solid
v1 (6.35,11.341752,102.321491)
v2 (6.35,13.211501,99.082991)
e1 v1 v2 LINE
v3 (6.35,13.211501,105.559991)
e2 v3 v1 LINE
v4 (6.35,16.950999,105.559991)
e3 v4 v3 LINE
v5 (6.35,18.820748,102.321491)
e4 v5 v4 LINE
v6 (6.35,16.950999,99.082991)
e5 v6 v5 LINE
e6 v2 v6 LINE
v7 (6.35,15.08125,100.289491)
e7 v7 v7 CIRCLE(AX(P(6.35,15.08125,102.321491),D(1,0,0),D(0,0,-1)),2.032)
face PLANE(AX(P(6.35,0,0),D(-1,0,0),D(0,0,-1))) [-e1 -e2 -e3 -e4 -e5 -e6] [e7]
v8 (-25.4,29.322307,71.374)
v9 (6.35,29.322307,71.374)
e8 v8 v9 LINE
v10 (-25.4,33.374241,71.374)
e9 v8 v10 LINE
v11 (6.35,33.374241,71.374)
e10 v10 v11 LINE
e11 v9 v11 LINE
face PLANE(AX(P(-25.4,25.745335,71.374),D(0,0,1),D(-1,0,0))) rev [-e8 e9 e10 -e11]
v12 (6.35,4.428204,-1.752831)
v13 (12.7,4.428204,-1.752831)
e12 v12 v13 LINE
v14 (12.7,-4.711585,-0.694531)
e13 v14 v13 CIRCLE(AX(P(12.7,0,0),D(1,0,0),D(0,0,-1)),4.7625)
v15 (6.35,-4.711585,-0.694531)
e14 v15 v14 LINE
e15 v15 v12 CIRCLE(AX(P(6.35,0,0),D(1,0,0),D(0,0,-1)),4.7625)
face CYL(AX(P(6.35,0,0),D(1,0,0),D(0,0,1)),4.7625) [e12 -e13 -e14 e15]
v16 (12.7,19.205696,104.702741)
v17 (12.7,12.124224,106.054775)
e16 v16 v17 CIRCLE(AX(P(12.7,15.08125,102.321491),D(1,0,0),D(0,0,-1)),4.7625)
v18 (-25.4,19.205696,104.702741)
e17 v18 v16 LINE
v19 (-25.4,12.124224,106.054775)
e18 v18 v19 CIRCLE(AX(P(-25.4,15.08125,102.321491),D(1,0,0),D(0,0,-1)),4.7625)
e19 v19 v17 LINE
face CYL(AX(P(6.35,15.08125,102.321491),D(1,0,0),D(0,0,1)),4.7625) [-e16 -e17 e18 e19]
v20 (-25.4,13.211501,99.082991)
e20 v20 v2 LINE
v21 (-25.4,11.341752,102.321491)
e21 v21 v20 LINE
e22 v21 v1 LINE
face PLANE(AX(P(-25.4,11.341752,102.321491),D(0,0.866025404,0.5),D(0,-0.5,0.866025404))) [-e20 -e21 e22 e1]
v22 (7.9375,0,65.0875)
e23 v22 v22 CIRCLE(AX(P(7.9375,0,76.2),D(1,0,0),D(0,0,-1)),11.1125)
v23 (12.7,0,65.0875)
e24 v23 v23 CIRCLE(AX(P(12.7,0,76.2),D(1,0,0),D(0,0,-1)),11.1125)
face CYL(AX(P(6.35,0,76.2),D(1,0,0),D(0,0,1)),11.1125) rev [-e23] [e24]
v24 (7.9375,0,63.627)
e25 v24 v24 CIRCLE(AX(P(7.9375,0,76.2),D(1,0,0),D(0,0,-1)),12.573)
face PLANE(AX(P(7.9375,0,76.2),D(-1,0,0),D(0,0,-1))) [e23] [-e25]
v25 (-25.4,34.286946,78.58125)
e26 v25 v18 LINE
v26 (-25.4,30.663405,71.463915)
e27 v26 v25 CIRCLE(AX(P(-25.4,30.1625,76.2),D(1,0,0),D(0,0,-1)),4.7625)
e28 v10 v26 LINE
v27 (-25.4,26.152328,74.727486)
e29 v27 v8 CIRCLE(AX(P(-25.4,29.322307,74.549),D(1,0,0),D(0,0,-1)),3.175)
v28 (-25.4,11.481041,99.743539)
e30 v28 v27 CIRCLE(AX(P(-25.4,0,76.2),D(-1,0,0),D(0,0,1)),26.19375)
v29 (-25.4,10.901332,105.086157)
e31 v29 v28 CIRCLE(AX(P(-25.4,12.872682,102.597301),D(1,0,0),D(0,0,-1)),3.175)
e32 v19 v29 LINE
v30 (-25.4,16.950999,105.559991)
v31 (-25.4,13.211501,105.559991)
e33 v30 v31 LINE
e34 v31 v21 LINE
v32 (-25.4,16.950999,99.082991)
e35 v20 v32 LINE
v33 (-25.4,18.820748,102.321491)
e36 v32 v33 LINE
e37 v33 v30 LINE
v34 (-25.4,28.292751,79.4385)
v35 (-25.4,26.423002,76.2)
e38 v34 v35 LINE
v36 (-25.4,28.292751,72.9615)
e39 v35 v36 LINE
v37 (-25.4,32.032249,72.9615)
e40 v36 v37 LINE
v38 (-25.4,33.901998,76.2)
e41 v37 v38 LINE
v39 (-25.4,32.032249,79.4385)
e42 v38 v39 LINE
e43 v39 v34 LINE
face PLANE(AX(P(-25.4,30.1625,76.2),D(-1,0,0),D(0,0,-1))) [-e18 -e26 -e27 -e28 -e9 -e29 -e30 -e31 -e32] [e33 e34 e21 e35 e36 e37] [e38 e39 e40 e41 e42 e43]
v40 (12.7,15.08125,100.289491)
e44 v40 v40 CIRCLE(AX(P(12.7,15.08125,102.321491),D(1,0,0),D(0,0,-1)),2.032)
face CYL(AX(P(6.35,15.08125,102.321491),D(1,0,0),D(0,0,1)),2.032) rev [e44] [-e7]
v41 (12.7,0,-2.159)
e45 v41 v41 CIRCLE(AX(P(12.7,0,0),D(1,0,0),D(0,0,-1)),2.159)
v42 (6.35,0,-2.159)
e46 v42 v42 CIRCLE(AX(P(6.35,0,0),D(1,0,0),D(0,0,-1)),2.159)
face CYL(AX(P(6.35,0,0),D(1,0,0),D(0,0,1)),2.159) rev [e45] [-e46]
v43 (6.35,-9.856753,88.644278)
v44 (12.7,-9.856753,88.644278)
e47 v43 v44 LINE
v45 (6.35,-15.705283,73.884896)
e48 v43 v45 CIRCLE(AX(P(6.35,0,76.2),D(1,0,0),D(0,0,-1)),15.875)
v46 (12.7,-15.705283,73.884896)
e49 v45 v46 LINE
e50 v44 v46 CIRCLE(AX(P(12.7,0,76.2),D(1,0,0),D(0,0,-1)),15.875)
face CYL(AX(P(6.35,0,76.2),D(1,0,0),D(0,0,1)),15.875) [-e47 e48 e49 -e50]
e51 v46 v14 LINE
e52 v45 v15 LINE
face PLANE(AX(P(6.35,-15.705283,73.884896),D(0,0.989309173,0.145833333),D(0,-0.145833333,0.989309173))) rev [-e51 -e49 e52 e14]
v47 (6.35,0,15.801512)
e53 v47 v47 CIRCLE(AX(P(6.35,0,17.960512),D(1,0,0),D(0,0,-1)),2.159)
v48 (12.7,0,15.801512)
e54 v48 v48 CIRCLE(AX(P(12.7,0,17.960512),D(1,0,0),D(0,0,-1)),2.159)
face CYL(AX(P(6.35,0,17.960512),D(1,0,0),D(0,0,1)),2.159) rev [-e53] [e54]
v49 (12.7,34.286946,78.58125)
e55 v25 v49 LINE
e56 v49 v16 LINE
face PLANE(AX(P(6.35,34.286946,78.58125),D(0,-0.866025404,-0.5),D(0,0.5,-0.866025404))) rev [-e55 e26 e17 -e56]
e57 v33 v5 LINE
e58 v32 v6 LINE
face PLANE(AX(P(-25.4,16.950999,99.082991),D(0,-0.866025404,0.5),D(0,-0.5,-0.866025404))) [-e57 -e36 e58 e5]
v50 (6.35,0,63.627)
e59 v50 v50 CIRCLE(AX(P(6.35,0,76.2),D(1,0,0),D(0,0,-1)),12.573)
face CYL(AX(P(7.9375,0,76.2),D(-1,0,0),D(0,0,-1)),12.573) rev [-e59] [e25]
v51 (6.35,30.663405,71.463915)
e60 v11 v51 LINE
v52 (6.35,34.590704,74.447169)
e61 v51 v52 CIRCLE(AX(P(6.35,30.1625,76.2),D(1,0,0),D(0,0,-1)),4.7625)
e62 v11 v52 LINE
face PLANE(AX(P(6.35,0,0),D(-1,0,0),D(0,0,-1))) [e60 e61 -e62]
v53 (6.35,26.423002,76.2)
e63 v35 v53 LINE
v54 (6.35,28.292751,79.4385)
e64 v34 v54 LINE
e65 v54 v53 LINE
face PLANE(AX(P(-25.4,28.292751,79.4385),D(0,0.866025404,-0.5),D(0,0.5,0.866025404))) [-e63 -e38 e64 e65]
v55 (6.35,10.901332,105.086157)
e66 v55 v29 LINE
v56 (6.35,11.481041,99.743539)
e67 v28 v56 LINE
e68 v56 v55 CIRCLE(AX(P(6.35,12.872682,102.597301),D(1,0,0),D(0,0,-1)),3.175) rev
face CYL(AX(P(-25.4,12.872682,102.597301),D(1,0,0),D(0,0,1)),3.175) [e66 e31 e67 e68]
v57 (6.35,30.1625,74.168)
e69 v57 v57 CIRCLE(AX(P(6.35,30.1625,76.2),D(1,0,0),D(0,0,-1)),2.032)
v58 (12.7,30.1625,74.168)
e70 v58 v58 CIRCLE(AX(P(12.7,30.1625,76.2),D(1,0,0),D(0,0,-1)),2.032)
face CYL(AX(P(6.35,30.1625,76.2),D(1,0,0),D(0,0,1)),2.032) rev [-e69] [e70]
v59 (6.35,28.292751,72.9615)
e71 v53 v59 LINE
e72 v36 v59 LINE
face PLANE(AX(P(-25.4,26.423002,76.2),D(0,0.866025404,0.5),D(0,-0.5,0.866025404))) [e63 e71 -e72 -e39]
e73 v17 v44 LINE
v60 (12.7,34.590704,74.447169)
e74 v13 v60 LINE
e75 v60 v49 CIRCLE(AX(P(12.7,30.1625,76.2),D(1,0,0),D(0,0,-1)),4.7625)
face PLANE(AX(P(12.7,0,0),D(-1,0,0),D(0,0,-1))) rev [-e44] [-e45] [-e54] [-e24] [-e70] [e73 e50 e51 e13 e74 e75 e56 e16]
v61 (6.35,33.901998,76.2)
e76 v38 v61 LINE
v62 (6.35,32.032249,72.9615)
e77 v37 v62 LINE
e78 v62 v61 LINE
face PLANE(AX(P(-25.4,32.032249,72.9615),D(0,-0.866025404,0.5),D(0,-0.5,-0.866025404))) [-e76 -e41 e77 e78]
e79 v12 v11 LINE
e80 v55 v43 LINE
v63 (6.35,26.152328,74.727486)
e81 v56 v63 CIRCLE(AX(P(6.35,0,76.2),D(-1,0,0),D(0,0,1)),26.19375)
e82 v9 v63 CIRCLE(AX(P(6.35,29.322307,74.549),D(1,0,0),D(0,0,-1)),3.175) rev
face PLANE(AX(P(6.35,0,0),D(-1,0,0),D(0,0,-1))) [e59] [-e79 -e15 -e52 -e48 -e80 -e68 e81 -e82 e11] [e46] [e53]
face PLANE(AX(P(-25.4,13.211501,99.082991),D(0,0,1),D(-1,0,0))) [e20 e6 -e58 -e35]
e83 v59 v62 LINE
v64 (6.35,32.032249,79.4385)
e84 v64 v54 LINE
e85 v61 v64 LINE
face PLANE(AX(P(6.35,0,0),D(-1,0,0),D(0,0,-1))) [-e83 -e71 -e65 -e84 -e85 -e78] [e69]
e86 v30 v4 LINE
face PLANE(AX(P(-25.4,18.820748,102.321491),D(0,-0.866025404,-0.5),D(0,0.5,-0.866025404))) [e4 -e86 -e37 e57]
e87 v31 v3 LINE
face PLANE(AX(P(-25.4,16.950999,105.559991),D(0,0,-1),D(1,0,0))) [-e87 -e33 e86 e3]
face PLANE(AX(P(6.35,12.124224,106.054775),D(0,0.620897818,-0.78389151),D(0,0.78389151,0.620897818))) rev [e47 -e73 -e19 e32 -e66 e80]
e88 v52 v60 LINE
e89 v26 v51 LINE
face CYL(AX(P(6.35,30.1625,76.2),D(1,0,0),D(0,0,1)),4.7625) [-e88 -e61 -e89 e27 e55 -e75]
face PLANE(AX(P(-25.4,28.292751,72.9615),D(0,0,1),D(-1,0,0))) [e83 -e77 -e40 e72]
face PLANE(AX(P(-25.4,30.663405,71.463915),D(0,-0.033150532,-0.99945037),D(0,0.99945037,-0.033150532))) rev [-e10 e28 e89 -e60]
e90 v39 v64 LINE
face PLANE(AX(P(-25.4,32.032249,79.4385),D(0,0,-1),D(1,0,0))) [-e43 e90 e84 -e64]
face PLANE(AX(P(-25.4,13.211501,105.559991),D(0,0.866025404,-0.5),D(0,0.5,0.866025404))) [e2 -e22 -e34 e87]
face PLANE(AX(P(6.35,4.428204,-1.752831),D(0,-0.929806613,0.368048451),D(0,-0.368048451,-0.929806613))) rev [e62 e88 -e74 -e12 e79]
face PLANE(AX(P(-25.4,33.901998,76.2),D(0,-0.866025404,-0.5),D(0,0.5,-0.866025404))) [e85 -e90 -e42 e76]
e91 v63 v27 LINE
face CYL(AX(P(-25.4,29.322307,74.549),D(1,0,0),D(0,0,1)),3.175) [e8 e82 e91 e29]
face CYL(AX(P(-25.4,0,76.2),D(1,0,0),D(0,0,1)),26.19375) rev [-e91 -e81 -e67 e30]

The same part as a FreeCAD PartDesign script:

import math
import FreeCAD as App
import Part
import Sketcher
Q = App.Units.Quantity


def edges_at(feature, points):
    """Names of the edges that pass closest to the given points."""
    edges = feature.Shape.Edges
    near = lambda p: min(range(len(edges)), key=lambda i: edges[i].distToShape(Part.Vertex(*p))[0])
    return sorted({f"Edge{near(p) + 1}" for p in points})

doc = App.newDocument("Part")
body = doc.addObject("PartDesign::Body", "Body")

sketch1 = body.newObject("Sketcher::SketchObject", "Sketch")
sketch1.AttachmentSupport = (doc.getObject("YZ_Plane"), [""])
sketch1.MapMode = "FlatFace"
sketch1.addGeometry([
    Part.LineSegment(App.Vector(4.4, -1.8, 0), App.Vector(34.6, 74.4, 0)),
    Part.ArcOfCircle(Part.Circle(App.Vector(30.2, 76.2, 0), App.Vector(0, 0, 1), 4.8), math.radians(-22), math.radians(30)),
    Part.LineSegment(App.Vector(34.3, 78.6, 0), App.Vector(19.2, 104.7, 0)),
    Part.ArcOfCircle(Part.Circle(App.Vector(15.1, 102.3, 0), App.Vector(0, 0, 1), 4.8), math.radians(30), math.radians(128)),
    Part.LineSegment(App.Vector(12.1, 106.1, 0), App.Vector(-9.9, 88.6, 0)),
    Part.ArcOfCircle(Part.Circle(App.Vector(0, 76.2, 0), App.Vector(0, 0, 1), 15.9), math.radians(128), math.radians(188)),
    Part.LineSegment(App.Vector(-15.7, 73.9, 0), App.Vector(-4.7, -0.7, 0)),
    Part.ArcOfCircle(Part.Circle(App.Vector(0, 0, 0), App.Vector(0, 0, 1), 4.8), math.radians(-172), math.radians(-22)),
    Part.Circle(App.Vector(0, 76.2, 0), App.Vector(0, 0, 1), 11.1),
    Part.Circle(App.Vector(0, 18, 0), App.Vector(0, 0, 1), 2.2),
    Part.Circle(App.Vector(0, 0, 0), App.Vector(0, 0, 1), 2.2),
    Part.Circle(App.Vector(15.1, 102.3, 0), App.Vector(0, 0, 1), 2),
    Part.Circle(App.Vector(30.2, 76.2, 0), App.Vector(0, 0, 1), 2),
], False)
sketch1.addConstraint([
    Sketcher.Constraint("Tangent", 0, 2, 1, 1),
    Sketcher.Constraint("Tangent", 1, 2, 2, 1),
    Sketcher.Constraint("Tangent", 2, 2, 3, 1),
    Sketcher.Constraint("Tangent", 3, 2, 4, 1),
    Sketcher.Constraint("Tangent", 4, 2, 5, 1),
    Sketcher.Constraint("Tangent", 5, 2, 6, 1),
    Sketcher.Constraint("Tangent", 6, 2, 7, 1),
    Sketcher.Constraint("Tangent", 7, 2, 0, 1),
    Sketcher.Constraint("Coincident", 7, 3, -1, 1),
    Sketcher.Constraint("Coincident", 10, 3, -1, 1),
    Sketcher.Constraint("Coincident", 8, 3, 5, 3),
    Sketcher.Constraint("Coincident", 11, 3, 3, 3),
    Sketcher.Constraint("Coincident", 12, 3, 1, 3),
    Sketcher.Constraint("Equal", 1, 3),
    Sketcher.Constraint("Equal", 3, 7),
    Sketcher.Constraint("Equal", 9, 10),
    Sketcher.Constraint("Equal", 11, 12),
    Sketcher.Constraint("PointOnObject", 5, 3, -2),
    Sketcher.Constraint("PointOnObject", 9, 3, -2),
    Sketcher.Constraint("Horizontal", 1, 3, 5, 3),
    Sketcher.Constraint("Diameter", 9, Q("0.17 in")),
    Sketcher.Constraint("Diameter", 11, Q("0.16 in")),
    Sketcher.Constraint("Diameter", 8, Q("0.875 in")),
    Sketcher.Constraint("DistanceY", -1, 1, 1, 3, Q("3 in")),
    Sketcher.Constraint("Angle", 2, Q("120 deg")),
    Sketcher.Constraint("Radius", 1, Q("0.1875 in")),
    Sketcher.Constraint("Radius", 5, Q("0.625 in")),
    Sketcher.Constraint("Distance", 2, Q("1.1875 in")),
    Sketcher.Constraint("DistanceX", -1, 1, 1, 3, Q("1.1875 in")),
    Sketcher.Constraint("DistanceY", 9, 3, 3, 3, 84.360979),
])
pad1 = body.newObject("PartDesign::Pad", "Pad")
pad1.Profile = sketch1
pad1.Length = Q("0.25 in")

sketch2 = body.newObject("Sketcher::SketchObject", "Sketch001")
sketch2.AttachmentSupport = (doc.getObject("YZ_Plane"), [""])
sketch2.MapMode = "FlatFace"
sketch2.AttachmentOffset = App.Placement(App.Vector(0, 0, 0.25 * 25.4), App.Rotation())
sketch2.addGeometry(Part.Circle(App.Vector(0, 76, 0), App.Vector(0, 0, 1), 13), False)
sketch2.addConstraint([
    Sketcher.Constraint("PointOnObject", 0, 3, -2),
    Sketcher.Constraint("Diameter", 0, Q("0.99 in")),
    Sketcher.Constraint("DistanceY", -1, 1, 0, 3, Q("3 in")),
])
pocket1 = body.newObject("PartDesign::Pocket", "Pocket")
pocket1.Profile = sketch2
pocket1.Length = Q("0.0625 in")

sketch3 = body.newObject("Sketcher::SketchObject", "Sketch002")
sketch3.AttachmentSupport = (doc.getObject("YZ_Plane"), [""])
sketch3.MapMode = "FlatFace"
sketch3.AttachmentOffset = App.Placement(App.Vector(0, 0, 0.25 * 25.4), App.Rotation())
sketch3.addGeometry([
    Part.LineSegment(App.Vector(34.3, 78.6, 0), App.Vector(19.2, 104.7, 0)),
    Part.ArcOfCircle(Part.Circle(App.Vector(15.1, 102.3, 0), App.Vector(0, 0, 1), 4.8), math.radians(30), math.radians(128)),
    Part.LineSegment(App.Vector(12.1, 106.1, 0), App.Vector(6.5, 101.6, 0)),
    Part.ArcOfCircle(Part.Circle(App.Vector(0, 76.2, 0), App.Vector(0, 0, 1), 26.2), math.radians(-11), math.radians(76)),
    Part.LineSegment(App.Vector(25.7, 71.4, 0), App.Vector(33.4, 71.4, 0)),
    Part.LineSegment(App.Vector(33.4, 71.4, 0), App.Vector(30.7, 71.5, 0)),
    Part.ArcOfCircle(Part.Circle(App.Vector(30.2, 76.2, 0), App.Vector(0, 0, 1), 4.8), math.radians(-84), math.radians(30)),
    Part.LineSegment(App.Vector(17, 105.6, 0), App.Vector(18.8, 102.3, 0)),
    Part.LineSegment(App.Vector(18.8, 102.3, 0), App.Vector(17, 99.1, 0)),
    Part.LineSegment(App.Vector(17, 99.1, 0), App.Vector(13.2, 99.1, 0)),
    Part.LineSegment(App.Vector(13.2, 99.1, 0), App.Vector(11.3, 102.3, 0)),
    Part.LineSegment(App.Vector(11.3, 102.3, 0), App.Vector(13.2, 105.6, 0)),
    Part.LineSegment(App.Vector(13.2, 105.6, 0), App.Vector(17, 105.6, 0)),
    Part.LineSegment(App.Vector(32, 79.4, 0), App.Vector(33.9, 76.2, 0)),
    Part.LineSegment(App.Vector(33.9, 76.2, 0), App.Vector(32, 73, 0)),
    Part.LineSegment(App.Vector(32, 73, 0), App.Vector(28.3, 73, 0)),
    Part.LineSegment(App.Vector(28.3, 73, 0), App.Vector(26.4, 76.2, 0)),
    Part.LineSegment(App.Vector(26.4, 76.2, 0), App.Vector(28.3, 79.4, 0)),
    Part.LineSegment(App.Vector(28.3, 79.4, 0), App.Vector(32, 79.4, 0)),
], False)
sketch3.addConstraint([
    Sketcher.Constraint("Tangent", 0, 2, 1, 1),
    Sketcher.Constraint("Tangent", 1, 2, 2, 1),
    Sketcher.Constraint("Coincident", 2, 2, 3, 2),
    Sketcher.Constraint("Coincident", 3, 1, 4, 1),
    Sketcher.Constraint("Coincident", 4, 2, 5, 1),
    Sketcher.Constraint("Coincident", 5, 2, 6, 1),
    Sketcher.Constraint("Tangent", 6, 2, 0, 1),
    Sketcher.Constraint("Coincident", 7, 2, 8, 1),
    Sketcher.Constraint("Coincident", 8, 2, 9, 1),
    Sketcher.Constraint("Coincident", 9, 2, 10, 1),
    Sketcher.Constraint("Coincident", 10, 2, 11, 1),
    Sketcher.Constraint("Coincident", 11, 2, 12, 1),
    Sketcher.Constraint("Coincident", 12, 2, 7, 1),
    Sketcher.Constraint("Coincident", 13, 2, 14, 1),
    Sketcher.Constraint("Coincident", 14, 2, 15, 1),
    Sketcher.Constraint("Coincident", 15, 2, 16, 1),
    Sketcher.Constraint("Coincident", 16, 2, 17, 1),
    Sketcher.Constraint("Coincident", 17, 2, 18, 1),
    Sketcher.Constraint("Coincident", 18, 2, 13, 1),
    Sketcher.Constraint("Horizontal", 4),
    Sketcher.Constraint("Horizontal", 9),
    Sketcher.Constraint("Horizontal", 12),
    Sketcher.Constraint("Horizontal", 15),
    Sketcher.Constraint("Horizontal", 18),
    Sketcher.Constraint("Equal", 1, 6),
    Sketcher.Constraint("PointOnObject", 3, 3, -2),
    Sketcher.Constraint("Parallel", 0, 7),
    Sketcher.Constraint("Parallel", 7, 10),
    Sketcher.Constraint("Parallel", 8, 11),
    Sketcher.Constraint("Parallel", 10, 13),
    Sketcher.Constraint("Parallel", 11, 14),
    Sketcher.Constraint("Parallel", 13, 16),
    Sketcher.Constraint("Parallel", 14, 17),
    Sketcher.Constraint("Horizontal", 3, 3, 6, 3),
    Sketcher.Constraint("Horizontal", 1, 3, 7, 2),
    Sketcher.Constraint("Horizontal", 7, 2, 10, 2),
    Sketcher.Constraint("Horizontal", 6, 3, 13, 2),
    Sketcher.Constraint("Horizontal", 13, 2, 16, 2),
    Sketcher.Constraint("Vertical", 9, 2, 11, 2),
    Sketcher.Constraint("Vertical", 8, 2, 12, 2),
    Sketcher.Constraint("Vertical", 15, 2, 17, 2),
    Sketcher.Constraint("Equal", 12, 15),
    Sketcher.Constraint("Equal", 11, 13),
    Sketcher.Constraint("DistanceY", -1, 1, 3, 3, Q("3 in")),
    Sketcher.Constraint("Angle", 0, Q("120 deg")),
    Sketcher.Constraint("Radius", 1, Q("0.1875 in")),
    Sketcher.Constraint("Radius", 3, Q("1.03125 in")),
    Sketcher.Constraint("DistanceY", -1, 1, 3, 1, Q("2.81 in")),
    Sketcher.Constraint("Distance", 0, Q("1.1875 in")),
    Sketcher.Constraint("DistanceX", -1, 1, 1, 3, Q("0.59375 in")),
    Sketcher.Constraint("DistanceY", 9, 2, 11, 2, Q("0.255 in")),
    Sketcher.Constraint("DistanceX", -1, 1, 8, 2, 16.950999),
    Sketcher.Constraint("DistanceX", -1, 1, 9, 2, 13.211501),
    Sketcher.Constraint("Distance", 2, 7.205848),
    Sketcher.Constraint("DistanceX", 4, 1, 4, 2, 7.628906),
    Sketcher.Constraint("DistanceX", -1, 1, 14, 2, 32.032249),
    Sketcher.Constraint("DistanceX", 3, 1, 5, 2, 4.91807),
])
pad2 = body.newObject("PartDesign::Pad", "Pad001")
pad2.Profile = sketch3
pad2.Length = Q("1.25 in")
doc.recompute()

fillet = body.newObject("PartDesign::Fillet", "Fillet")
fillet.Base = (pad2, edges_at(pad2, [(22.225, 25.745, 71.374), (22.225, 6.476, 101.581)]))
fillet.Radius = Q("0.125 in")
body2 = doc.addObject("PartDesign::Body", "Body001")
doc.recompute()

mirroring = doc.addObject("Part::Mirroring", "Mirroring")
mirroring.Source = body
mirroring.Base = App.Vector(6.35, 0, 0)
mirroring.Normal = App.Vector(1, 0, 0)
body2.BaseFeature = mirroring
doc.recompute()
body.Visibility = False
mirroring.Visibility = False

doc.recompute()
